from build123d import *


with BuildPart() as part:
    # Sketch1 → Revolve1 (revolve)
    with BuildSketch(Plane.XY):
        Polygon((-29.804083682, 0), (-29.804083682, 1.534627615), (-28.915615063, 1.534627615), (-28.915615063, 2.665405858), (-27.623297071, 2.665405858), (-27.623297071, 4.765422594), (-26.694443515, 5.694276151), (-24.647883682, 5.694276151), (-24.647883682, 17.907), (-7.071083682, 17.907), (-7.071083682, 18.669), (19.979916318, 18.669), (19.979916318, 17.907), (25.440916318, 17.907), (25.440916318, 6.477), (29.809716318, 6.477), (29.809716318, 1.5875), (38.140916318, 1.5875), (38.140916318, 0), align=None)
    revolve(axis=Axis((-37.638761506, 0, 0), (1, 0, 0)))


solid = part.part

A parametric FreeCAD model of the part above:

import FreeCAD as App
import Part
import Sketcher
from FreeCAD import Vector
Q = App.Units.Quantity


def add_polygon(sketch, points):
    """Adds a closed chain of lines whose ends are joined by coincident constraints."""
    first, n = sketch.GeometryCount, len(points)
    for a, b in zip(points, points[1:] + points[:1]):
        sketch.addGeometry(Part.LineSegment(App.Vector(*a, 0), App.Vector(*b, 0)), False)
    for i in range(n):
        sketch.addConstraint(Sketcher.Constraint("Coincident", first + i, 2, first + (i + 1) % n, 1))

doc = App.newDocument("Part")
body = doc.addObject("PartDesign::Body", "Body")

sketch1 = body.newObject("Sketcher::SketchObject", "Sketch")
sketch1.AttachmentSupport = (doc.getObject("XY_Plane"), [""])
sketch1.MapMode = "FlatFace"
add_polygon(sketch1, [(-29.8, 1.5), (-29.8, 0), (38.1, 0), (38.1, 1.6), (29.8, 1.6), (29.8, 6.5), (25.4, 6.5), (25.4, 17.9), (20, 17.9), (20, 18.7), (-7.1, 18.7), (-7.1, 17.9), (-24.6, 17.9), (-24.6, 5.7), (-26.7, 5.7), (-27.6, 4.8), (-27.6, 2.7), (-28.9, 2.7), (-28.9, 1.5)])
sketch1.addConstraint([
    Sketcher.Constraint("Vertical", 0),
    Sketcher.Constraint("Horizontal", 1),
    Sketcher.Constraint("Vertical", 2),
    Sketcher.Constraint("Horizontal", 3),
    Sketcher.Constraint("Vertical", 4),
    Sketcher.Constraint("Horizontal", 5),
    Sketcher.Constraint("Vertical", 6),
    Sketcher.Constraint("Horizontal", 7),
    Sketcher.Constraint("Vertical", 8),
    Sketcher.Constraint("Horizontal", 9),
    Sketcher.Constraint("Vertical", 10),
    Sketcher.Constraint("Horizontal", 11),
    Sketcher.Constraint("Vertical", 12),
    Sketcher.Constraint("Horizontal", 13),
    Sketcher.Constraint("Vertical", 15),
    Sketcher.Constraint("Horizontal", 16),
    Sketcher.Constraint("Vertical", 17),
    Sketcher.Constraint("Horizontal", 18),
    Sketcher.Constraint("PointOnObject", 0, 2, -1),
    Sketcher.Constraint("Horizontal", 7, 2, 10, 2),
    Sketcher.Constraint("Angle", 14, Q("-135 deg")),
    Sketcher.Constraint("DistanceY", 6, 1, 6, 2, Q("0.45 in")),
    Sketcher.Constraint("DistanceY", 8, 1, 8, 2, Q("0.03 in")),
    Sketcher.Constraint("DistanceX", 5, 2, 2, 2, Q("0.5 in")),
    Sketcher.Constraint("DistanceX", 1, 1, 1, 2, Q("2.675 in")),
    Sketcher.Constraint("DistanceX", 3, 2, 3, 1, Q("0.328 in")),
    Sketcher.Constraint("DistanceX", 7, 2, 7, 1, Q("0.215 in")),
    Sketcher.Constraint("DistanceX", 9, 2, 9, 1, Q("1.065 in")),
    Sketcher.Constraint("DistanceX", 11, 2, 11, 1, Q("0.692 in")),
    Sketcher.Constraint("DistanceY", 2, 1, 2, 2, Q("0.0625 in")),
    Sketcher.Constraint("DistanceY", 4, 1, 4, 2, Q("0.1925 in")),
    Sketcher.Constraint("DistanceX", 13, 2, 13, 1, Q("2.04656 mm")),
    Sketcher.Constraint("DistanceX", 18, 2, 18, 1, Q("0.888469 mm")),
    Sketcher.Constraint("DistanceY", 17, 2, 17, 1, Q("1.130778 mm")),
    Sketcher.Constraint("DistanceX", 16, 2, 16, 1, Q("1.292318 mm")),
    Sketcher.Constraint("DistanceY", 0, 2, 0, 1, Q("1.534628 mm")),
    Sketcher.Constraint("DistanceY", 12, 2, 12, 1, Q("12.212724 mm")),
    Sketcher.Constraint("DistanceX", 0, 2, -1, 1, Q("29.804084 mm")),
])
revolution = body.newObject("PartDesign::Revolution", "Revolution")
revolution.Profile = sketch1
revolution.ReferenceAxis = (sketch1, ["H_Axis"])
revolution.Angle = 360

doc.recompute()
